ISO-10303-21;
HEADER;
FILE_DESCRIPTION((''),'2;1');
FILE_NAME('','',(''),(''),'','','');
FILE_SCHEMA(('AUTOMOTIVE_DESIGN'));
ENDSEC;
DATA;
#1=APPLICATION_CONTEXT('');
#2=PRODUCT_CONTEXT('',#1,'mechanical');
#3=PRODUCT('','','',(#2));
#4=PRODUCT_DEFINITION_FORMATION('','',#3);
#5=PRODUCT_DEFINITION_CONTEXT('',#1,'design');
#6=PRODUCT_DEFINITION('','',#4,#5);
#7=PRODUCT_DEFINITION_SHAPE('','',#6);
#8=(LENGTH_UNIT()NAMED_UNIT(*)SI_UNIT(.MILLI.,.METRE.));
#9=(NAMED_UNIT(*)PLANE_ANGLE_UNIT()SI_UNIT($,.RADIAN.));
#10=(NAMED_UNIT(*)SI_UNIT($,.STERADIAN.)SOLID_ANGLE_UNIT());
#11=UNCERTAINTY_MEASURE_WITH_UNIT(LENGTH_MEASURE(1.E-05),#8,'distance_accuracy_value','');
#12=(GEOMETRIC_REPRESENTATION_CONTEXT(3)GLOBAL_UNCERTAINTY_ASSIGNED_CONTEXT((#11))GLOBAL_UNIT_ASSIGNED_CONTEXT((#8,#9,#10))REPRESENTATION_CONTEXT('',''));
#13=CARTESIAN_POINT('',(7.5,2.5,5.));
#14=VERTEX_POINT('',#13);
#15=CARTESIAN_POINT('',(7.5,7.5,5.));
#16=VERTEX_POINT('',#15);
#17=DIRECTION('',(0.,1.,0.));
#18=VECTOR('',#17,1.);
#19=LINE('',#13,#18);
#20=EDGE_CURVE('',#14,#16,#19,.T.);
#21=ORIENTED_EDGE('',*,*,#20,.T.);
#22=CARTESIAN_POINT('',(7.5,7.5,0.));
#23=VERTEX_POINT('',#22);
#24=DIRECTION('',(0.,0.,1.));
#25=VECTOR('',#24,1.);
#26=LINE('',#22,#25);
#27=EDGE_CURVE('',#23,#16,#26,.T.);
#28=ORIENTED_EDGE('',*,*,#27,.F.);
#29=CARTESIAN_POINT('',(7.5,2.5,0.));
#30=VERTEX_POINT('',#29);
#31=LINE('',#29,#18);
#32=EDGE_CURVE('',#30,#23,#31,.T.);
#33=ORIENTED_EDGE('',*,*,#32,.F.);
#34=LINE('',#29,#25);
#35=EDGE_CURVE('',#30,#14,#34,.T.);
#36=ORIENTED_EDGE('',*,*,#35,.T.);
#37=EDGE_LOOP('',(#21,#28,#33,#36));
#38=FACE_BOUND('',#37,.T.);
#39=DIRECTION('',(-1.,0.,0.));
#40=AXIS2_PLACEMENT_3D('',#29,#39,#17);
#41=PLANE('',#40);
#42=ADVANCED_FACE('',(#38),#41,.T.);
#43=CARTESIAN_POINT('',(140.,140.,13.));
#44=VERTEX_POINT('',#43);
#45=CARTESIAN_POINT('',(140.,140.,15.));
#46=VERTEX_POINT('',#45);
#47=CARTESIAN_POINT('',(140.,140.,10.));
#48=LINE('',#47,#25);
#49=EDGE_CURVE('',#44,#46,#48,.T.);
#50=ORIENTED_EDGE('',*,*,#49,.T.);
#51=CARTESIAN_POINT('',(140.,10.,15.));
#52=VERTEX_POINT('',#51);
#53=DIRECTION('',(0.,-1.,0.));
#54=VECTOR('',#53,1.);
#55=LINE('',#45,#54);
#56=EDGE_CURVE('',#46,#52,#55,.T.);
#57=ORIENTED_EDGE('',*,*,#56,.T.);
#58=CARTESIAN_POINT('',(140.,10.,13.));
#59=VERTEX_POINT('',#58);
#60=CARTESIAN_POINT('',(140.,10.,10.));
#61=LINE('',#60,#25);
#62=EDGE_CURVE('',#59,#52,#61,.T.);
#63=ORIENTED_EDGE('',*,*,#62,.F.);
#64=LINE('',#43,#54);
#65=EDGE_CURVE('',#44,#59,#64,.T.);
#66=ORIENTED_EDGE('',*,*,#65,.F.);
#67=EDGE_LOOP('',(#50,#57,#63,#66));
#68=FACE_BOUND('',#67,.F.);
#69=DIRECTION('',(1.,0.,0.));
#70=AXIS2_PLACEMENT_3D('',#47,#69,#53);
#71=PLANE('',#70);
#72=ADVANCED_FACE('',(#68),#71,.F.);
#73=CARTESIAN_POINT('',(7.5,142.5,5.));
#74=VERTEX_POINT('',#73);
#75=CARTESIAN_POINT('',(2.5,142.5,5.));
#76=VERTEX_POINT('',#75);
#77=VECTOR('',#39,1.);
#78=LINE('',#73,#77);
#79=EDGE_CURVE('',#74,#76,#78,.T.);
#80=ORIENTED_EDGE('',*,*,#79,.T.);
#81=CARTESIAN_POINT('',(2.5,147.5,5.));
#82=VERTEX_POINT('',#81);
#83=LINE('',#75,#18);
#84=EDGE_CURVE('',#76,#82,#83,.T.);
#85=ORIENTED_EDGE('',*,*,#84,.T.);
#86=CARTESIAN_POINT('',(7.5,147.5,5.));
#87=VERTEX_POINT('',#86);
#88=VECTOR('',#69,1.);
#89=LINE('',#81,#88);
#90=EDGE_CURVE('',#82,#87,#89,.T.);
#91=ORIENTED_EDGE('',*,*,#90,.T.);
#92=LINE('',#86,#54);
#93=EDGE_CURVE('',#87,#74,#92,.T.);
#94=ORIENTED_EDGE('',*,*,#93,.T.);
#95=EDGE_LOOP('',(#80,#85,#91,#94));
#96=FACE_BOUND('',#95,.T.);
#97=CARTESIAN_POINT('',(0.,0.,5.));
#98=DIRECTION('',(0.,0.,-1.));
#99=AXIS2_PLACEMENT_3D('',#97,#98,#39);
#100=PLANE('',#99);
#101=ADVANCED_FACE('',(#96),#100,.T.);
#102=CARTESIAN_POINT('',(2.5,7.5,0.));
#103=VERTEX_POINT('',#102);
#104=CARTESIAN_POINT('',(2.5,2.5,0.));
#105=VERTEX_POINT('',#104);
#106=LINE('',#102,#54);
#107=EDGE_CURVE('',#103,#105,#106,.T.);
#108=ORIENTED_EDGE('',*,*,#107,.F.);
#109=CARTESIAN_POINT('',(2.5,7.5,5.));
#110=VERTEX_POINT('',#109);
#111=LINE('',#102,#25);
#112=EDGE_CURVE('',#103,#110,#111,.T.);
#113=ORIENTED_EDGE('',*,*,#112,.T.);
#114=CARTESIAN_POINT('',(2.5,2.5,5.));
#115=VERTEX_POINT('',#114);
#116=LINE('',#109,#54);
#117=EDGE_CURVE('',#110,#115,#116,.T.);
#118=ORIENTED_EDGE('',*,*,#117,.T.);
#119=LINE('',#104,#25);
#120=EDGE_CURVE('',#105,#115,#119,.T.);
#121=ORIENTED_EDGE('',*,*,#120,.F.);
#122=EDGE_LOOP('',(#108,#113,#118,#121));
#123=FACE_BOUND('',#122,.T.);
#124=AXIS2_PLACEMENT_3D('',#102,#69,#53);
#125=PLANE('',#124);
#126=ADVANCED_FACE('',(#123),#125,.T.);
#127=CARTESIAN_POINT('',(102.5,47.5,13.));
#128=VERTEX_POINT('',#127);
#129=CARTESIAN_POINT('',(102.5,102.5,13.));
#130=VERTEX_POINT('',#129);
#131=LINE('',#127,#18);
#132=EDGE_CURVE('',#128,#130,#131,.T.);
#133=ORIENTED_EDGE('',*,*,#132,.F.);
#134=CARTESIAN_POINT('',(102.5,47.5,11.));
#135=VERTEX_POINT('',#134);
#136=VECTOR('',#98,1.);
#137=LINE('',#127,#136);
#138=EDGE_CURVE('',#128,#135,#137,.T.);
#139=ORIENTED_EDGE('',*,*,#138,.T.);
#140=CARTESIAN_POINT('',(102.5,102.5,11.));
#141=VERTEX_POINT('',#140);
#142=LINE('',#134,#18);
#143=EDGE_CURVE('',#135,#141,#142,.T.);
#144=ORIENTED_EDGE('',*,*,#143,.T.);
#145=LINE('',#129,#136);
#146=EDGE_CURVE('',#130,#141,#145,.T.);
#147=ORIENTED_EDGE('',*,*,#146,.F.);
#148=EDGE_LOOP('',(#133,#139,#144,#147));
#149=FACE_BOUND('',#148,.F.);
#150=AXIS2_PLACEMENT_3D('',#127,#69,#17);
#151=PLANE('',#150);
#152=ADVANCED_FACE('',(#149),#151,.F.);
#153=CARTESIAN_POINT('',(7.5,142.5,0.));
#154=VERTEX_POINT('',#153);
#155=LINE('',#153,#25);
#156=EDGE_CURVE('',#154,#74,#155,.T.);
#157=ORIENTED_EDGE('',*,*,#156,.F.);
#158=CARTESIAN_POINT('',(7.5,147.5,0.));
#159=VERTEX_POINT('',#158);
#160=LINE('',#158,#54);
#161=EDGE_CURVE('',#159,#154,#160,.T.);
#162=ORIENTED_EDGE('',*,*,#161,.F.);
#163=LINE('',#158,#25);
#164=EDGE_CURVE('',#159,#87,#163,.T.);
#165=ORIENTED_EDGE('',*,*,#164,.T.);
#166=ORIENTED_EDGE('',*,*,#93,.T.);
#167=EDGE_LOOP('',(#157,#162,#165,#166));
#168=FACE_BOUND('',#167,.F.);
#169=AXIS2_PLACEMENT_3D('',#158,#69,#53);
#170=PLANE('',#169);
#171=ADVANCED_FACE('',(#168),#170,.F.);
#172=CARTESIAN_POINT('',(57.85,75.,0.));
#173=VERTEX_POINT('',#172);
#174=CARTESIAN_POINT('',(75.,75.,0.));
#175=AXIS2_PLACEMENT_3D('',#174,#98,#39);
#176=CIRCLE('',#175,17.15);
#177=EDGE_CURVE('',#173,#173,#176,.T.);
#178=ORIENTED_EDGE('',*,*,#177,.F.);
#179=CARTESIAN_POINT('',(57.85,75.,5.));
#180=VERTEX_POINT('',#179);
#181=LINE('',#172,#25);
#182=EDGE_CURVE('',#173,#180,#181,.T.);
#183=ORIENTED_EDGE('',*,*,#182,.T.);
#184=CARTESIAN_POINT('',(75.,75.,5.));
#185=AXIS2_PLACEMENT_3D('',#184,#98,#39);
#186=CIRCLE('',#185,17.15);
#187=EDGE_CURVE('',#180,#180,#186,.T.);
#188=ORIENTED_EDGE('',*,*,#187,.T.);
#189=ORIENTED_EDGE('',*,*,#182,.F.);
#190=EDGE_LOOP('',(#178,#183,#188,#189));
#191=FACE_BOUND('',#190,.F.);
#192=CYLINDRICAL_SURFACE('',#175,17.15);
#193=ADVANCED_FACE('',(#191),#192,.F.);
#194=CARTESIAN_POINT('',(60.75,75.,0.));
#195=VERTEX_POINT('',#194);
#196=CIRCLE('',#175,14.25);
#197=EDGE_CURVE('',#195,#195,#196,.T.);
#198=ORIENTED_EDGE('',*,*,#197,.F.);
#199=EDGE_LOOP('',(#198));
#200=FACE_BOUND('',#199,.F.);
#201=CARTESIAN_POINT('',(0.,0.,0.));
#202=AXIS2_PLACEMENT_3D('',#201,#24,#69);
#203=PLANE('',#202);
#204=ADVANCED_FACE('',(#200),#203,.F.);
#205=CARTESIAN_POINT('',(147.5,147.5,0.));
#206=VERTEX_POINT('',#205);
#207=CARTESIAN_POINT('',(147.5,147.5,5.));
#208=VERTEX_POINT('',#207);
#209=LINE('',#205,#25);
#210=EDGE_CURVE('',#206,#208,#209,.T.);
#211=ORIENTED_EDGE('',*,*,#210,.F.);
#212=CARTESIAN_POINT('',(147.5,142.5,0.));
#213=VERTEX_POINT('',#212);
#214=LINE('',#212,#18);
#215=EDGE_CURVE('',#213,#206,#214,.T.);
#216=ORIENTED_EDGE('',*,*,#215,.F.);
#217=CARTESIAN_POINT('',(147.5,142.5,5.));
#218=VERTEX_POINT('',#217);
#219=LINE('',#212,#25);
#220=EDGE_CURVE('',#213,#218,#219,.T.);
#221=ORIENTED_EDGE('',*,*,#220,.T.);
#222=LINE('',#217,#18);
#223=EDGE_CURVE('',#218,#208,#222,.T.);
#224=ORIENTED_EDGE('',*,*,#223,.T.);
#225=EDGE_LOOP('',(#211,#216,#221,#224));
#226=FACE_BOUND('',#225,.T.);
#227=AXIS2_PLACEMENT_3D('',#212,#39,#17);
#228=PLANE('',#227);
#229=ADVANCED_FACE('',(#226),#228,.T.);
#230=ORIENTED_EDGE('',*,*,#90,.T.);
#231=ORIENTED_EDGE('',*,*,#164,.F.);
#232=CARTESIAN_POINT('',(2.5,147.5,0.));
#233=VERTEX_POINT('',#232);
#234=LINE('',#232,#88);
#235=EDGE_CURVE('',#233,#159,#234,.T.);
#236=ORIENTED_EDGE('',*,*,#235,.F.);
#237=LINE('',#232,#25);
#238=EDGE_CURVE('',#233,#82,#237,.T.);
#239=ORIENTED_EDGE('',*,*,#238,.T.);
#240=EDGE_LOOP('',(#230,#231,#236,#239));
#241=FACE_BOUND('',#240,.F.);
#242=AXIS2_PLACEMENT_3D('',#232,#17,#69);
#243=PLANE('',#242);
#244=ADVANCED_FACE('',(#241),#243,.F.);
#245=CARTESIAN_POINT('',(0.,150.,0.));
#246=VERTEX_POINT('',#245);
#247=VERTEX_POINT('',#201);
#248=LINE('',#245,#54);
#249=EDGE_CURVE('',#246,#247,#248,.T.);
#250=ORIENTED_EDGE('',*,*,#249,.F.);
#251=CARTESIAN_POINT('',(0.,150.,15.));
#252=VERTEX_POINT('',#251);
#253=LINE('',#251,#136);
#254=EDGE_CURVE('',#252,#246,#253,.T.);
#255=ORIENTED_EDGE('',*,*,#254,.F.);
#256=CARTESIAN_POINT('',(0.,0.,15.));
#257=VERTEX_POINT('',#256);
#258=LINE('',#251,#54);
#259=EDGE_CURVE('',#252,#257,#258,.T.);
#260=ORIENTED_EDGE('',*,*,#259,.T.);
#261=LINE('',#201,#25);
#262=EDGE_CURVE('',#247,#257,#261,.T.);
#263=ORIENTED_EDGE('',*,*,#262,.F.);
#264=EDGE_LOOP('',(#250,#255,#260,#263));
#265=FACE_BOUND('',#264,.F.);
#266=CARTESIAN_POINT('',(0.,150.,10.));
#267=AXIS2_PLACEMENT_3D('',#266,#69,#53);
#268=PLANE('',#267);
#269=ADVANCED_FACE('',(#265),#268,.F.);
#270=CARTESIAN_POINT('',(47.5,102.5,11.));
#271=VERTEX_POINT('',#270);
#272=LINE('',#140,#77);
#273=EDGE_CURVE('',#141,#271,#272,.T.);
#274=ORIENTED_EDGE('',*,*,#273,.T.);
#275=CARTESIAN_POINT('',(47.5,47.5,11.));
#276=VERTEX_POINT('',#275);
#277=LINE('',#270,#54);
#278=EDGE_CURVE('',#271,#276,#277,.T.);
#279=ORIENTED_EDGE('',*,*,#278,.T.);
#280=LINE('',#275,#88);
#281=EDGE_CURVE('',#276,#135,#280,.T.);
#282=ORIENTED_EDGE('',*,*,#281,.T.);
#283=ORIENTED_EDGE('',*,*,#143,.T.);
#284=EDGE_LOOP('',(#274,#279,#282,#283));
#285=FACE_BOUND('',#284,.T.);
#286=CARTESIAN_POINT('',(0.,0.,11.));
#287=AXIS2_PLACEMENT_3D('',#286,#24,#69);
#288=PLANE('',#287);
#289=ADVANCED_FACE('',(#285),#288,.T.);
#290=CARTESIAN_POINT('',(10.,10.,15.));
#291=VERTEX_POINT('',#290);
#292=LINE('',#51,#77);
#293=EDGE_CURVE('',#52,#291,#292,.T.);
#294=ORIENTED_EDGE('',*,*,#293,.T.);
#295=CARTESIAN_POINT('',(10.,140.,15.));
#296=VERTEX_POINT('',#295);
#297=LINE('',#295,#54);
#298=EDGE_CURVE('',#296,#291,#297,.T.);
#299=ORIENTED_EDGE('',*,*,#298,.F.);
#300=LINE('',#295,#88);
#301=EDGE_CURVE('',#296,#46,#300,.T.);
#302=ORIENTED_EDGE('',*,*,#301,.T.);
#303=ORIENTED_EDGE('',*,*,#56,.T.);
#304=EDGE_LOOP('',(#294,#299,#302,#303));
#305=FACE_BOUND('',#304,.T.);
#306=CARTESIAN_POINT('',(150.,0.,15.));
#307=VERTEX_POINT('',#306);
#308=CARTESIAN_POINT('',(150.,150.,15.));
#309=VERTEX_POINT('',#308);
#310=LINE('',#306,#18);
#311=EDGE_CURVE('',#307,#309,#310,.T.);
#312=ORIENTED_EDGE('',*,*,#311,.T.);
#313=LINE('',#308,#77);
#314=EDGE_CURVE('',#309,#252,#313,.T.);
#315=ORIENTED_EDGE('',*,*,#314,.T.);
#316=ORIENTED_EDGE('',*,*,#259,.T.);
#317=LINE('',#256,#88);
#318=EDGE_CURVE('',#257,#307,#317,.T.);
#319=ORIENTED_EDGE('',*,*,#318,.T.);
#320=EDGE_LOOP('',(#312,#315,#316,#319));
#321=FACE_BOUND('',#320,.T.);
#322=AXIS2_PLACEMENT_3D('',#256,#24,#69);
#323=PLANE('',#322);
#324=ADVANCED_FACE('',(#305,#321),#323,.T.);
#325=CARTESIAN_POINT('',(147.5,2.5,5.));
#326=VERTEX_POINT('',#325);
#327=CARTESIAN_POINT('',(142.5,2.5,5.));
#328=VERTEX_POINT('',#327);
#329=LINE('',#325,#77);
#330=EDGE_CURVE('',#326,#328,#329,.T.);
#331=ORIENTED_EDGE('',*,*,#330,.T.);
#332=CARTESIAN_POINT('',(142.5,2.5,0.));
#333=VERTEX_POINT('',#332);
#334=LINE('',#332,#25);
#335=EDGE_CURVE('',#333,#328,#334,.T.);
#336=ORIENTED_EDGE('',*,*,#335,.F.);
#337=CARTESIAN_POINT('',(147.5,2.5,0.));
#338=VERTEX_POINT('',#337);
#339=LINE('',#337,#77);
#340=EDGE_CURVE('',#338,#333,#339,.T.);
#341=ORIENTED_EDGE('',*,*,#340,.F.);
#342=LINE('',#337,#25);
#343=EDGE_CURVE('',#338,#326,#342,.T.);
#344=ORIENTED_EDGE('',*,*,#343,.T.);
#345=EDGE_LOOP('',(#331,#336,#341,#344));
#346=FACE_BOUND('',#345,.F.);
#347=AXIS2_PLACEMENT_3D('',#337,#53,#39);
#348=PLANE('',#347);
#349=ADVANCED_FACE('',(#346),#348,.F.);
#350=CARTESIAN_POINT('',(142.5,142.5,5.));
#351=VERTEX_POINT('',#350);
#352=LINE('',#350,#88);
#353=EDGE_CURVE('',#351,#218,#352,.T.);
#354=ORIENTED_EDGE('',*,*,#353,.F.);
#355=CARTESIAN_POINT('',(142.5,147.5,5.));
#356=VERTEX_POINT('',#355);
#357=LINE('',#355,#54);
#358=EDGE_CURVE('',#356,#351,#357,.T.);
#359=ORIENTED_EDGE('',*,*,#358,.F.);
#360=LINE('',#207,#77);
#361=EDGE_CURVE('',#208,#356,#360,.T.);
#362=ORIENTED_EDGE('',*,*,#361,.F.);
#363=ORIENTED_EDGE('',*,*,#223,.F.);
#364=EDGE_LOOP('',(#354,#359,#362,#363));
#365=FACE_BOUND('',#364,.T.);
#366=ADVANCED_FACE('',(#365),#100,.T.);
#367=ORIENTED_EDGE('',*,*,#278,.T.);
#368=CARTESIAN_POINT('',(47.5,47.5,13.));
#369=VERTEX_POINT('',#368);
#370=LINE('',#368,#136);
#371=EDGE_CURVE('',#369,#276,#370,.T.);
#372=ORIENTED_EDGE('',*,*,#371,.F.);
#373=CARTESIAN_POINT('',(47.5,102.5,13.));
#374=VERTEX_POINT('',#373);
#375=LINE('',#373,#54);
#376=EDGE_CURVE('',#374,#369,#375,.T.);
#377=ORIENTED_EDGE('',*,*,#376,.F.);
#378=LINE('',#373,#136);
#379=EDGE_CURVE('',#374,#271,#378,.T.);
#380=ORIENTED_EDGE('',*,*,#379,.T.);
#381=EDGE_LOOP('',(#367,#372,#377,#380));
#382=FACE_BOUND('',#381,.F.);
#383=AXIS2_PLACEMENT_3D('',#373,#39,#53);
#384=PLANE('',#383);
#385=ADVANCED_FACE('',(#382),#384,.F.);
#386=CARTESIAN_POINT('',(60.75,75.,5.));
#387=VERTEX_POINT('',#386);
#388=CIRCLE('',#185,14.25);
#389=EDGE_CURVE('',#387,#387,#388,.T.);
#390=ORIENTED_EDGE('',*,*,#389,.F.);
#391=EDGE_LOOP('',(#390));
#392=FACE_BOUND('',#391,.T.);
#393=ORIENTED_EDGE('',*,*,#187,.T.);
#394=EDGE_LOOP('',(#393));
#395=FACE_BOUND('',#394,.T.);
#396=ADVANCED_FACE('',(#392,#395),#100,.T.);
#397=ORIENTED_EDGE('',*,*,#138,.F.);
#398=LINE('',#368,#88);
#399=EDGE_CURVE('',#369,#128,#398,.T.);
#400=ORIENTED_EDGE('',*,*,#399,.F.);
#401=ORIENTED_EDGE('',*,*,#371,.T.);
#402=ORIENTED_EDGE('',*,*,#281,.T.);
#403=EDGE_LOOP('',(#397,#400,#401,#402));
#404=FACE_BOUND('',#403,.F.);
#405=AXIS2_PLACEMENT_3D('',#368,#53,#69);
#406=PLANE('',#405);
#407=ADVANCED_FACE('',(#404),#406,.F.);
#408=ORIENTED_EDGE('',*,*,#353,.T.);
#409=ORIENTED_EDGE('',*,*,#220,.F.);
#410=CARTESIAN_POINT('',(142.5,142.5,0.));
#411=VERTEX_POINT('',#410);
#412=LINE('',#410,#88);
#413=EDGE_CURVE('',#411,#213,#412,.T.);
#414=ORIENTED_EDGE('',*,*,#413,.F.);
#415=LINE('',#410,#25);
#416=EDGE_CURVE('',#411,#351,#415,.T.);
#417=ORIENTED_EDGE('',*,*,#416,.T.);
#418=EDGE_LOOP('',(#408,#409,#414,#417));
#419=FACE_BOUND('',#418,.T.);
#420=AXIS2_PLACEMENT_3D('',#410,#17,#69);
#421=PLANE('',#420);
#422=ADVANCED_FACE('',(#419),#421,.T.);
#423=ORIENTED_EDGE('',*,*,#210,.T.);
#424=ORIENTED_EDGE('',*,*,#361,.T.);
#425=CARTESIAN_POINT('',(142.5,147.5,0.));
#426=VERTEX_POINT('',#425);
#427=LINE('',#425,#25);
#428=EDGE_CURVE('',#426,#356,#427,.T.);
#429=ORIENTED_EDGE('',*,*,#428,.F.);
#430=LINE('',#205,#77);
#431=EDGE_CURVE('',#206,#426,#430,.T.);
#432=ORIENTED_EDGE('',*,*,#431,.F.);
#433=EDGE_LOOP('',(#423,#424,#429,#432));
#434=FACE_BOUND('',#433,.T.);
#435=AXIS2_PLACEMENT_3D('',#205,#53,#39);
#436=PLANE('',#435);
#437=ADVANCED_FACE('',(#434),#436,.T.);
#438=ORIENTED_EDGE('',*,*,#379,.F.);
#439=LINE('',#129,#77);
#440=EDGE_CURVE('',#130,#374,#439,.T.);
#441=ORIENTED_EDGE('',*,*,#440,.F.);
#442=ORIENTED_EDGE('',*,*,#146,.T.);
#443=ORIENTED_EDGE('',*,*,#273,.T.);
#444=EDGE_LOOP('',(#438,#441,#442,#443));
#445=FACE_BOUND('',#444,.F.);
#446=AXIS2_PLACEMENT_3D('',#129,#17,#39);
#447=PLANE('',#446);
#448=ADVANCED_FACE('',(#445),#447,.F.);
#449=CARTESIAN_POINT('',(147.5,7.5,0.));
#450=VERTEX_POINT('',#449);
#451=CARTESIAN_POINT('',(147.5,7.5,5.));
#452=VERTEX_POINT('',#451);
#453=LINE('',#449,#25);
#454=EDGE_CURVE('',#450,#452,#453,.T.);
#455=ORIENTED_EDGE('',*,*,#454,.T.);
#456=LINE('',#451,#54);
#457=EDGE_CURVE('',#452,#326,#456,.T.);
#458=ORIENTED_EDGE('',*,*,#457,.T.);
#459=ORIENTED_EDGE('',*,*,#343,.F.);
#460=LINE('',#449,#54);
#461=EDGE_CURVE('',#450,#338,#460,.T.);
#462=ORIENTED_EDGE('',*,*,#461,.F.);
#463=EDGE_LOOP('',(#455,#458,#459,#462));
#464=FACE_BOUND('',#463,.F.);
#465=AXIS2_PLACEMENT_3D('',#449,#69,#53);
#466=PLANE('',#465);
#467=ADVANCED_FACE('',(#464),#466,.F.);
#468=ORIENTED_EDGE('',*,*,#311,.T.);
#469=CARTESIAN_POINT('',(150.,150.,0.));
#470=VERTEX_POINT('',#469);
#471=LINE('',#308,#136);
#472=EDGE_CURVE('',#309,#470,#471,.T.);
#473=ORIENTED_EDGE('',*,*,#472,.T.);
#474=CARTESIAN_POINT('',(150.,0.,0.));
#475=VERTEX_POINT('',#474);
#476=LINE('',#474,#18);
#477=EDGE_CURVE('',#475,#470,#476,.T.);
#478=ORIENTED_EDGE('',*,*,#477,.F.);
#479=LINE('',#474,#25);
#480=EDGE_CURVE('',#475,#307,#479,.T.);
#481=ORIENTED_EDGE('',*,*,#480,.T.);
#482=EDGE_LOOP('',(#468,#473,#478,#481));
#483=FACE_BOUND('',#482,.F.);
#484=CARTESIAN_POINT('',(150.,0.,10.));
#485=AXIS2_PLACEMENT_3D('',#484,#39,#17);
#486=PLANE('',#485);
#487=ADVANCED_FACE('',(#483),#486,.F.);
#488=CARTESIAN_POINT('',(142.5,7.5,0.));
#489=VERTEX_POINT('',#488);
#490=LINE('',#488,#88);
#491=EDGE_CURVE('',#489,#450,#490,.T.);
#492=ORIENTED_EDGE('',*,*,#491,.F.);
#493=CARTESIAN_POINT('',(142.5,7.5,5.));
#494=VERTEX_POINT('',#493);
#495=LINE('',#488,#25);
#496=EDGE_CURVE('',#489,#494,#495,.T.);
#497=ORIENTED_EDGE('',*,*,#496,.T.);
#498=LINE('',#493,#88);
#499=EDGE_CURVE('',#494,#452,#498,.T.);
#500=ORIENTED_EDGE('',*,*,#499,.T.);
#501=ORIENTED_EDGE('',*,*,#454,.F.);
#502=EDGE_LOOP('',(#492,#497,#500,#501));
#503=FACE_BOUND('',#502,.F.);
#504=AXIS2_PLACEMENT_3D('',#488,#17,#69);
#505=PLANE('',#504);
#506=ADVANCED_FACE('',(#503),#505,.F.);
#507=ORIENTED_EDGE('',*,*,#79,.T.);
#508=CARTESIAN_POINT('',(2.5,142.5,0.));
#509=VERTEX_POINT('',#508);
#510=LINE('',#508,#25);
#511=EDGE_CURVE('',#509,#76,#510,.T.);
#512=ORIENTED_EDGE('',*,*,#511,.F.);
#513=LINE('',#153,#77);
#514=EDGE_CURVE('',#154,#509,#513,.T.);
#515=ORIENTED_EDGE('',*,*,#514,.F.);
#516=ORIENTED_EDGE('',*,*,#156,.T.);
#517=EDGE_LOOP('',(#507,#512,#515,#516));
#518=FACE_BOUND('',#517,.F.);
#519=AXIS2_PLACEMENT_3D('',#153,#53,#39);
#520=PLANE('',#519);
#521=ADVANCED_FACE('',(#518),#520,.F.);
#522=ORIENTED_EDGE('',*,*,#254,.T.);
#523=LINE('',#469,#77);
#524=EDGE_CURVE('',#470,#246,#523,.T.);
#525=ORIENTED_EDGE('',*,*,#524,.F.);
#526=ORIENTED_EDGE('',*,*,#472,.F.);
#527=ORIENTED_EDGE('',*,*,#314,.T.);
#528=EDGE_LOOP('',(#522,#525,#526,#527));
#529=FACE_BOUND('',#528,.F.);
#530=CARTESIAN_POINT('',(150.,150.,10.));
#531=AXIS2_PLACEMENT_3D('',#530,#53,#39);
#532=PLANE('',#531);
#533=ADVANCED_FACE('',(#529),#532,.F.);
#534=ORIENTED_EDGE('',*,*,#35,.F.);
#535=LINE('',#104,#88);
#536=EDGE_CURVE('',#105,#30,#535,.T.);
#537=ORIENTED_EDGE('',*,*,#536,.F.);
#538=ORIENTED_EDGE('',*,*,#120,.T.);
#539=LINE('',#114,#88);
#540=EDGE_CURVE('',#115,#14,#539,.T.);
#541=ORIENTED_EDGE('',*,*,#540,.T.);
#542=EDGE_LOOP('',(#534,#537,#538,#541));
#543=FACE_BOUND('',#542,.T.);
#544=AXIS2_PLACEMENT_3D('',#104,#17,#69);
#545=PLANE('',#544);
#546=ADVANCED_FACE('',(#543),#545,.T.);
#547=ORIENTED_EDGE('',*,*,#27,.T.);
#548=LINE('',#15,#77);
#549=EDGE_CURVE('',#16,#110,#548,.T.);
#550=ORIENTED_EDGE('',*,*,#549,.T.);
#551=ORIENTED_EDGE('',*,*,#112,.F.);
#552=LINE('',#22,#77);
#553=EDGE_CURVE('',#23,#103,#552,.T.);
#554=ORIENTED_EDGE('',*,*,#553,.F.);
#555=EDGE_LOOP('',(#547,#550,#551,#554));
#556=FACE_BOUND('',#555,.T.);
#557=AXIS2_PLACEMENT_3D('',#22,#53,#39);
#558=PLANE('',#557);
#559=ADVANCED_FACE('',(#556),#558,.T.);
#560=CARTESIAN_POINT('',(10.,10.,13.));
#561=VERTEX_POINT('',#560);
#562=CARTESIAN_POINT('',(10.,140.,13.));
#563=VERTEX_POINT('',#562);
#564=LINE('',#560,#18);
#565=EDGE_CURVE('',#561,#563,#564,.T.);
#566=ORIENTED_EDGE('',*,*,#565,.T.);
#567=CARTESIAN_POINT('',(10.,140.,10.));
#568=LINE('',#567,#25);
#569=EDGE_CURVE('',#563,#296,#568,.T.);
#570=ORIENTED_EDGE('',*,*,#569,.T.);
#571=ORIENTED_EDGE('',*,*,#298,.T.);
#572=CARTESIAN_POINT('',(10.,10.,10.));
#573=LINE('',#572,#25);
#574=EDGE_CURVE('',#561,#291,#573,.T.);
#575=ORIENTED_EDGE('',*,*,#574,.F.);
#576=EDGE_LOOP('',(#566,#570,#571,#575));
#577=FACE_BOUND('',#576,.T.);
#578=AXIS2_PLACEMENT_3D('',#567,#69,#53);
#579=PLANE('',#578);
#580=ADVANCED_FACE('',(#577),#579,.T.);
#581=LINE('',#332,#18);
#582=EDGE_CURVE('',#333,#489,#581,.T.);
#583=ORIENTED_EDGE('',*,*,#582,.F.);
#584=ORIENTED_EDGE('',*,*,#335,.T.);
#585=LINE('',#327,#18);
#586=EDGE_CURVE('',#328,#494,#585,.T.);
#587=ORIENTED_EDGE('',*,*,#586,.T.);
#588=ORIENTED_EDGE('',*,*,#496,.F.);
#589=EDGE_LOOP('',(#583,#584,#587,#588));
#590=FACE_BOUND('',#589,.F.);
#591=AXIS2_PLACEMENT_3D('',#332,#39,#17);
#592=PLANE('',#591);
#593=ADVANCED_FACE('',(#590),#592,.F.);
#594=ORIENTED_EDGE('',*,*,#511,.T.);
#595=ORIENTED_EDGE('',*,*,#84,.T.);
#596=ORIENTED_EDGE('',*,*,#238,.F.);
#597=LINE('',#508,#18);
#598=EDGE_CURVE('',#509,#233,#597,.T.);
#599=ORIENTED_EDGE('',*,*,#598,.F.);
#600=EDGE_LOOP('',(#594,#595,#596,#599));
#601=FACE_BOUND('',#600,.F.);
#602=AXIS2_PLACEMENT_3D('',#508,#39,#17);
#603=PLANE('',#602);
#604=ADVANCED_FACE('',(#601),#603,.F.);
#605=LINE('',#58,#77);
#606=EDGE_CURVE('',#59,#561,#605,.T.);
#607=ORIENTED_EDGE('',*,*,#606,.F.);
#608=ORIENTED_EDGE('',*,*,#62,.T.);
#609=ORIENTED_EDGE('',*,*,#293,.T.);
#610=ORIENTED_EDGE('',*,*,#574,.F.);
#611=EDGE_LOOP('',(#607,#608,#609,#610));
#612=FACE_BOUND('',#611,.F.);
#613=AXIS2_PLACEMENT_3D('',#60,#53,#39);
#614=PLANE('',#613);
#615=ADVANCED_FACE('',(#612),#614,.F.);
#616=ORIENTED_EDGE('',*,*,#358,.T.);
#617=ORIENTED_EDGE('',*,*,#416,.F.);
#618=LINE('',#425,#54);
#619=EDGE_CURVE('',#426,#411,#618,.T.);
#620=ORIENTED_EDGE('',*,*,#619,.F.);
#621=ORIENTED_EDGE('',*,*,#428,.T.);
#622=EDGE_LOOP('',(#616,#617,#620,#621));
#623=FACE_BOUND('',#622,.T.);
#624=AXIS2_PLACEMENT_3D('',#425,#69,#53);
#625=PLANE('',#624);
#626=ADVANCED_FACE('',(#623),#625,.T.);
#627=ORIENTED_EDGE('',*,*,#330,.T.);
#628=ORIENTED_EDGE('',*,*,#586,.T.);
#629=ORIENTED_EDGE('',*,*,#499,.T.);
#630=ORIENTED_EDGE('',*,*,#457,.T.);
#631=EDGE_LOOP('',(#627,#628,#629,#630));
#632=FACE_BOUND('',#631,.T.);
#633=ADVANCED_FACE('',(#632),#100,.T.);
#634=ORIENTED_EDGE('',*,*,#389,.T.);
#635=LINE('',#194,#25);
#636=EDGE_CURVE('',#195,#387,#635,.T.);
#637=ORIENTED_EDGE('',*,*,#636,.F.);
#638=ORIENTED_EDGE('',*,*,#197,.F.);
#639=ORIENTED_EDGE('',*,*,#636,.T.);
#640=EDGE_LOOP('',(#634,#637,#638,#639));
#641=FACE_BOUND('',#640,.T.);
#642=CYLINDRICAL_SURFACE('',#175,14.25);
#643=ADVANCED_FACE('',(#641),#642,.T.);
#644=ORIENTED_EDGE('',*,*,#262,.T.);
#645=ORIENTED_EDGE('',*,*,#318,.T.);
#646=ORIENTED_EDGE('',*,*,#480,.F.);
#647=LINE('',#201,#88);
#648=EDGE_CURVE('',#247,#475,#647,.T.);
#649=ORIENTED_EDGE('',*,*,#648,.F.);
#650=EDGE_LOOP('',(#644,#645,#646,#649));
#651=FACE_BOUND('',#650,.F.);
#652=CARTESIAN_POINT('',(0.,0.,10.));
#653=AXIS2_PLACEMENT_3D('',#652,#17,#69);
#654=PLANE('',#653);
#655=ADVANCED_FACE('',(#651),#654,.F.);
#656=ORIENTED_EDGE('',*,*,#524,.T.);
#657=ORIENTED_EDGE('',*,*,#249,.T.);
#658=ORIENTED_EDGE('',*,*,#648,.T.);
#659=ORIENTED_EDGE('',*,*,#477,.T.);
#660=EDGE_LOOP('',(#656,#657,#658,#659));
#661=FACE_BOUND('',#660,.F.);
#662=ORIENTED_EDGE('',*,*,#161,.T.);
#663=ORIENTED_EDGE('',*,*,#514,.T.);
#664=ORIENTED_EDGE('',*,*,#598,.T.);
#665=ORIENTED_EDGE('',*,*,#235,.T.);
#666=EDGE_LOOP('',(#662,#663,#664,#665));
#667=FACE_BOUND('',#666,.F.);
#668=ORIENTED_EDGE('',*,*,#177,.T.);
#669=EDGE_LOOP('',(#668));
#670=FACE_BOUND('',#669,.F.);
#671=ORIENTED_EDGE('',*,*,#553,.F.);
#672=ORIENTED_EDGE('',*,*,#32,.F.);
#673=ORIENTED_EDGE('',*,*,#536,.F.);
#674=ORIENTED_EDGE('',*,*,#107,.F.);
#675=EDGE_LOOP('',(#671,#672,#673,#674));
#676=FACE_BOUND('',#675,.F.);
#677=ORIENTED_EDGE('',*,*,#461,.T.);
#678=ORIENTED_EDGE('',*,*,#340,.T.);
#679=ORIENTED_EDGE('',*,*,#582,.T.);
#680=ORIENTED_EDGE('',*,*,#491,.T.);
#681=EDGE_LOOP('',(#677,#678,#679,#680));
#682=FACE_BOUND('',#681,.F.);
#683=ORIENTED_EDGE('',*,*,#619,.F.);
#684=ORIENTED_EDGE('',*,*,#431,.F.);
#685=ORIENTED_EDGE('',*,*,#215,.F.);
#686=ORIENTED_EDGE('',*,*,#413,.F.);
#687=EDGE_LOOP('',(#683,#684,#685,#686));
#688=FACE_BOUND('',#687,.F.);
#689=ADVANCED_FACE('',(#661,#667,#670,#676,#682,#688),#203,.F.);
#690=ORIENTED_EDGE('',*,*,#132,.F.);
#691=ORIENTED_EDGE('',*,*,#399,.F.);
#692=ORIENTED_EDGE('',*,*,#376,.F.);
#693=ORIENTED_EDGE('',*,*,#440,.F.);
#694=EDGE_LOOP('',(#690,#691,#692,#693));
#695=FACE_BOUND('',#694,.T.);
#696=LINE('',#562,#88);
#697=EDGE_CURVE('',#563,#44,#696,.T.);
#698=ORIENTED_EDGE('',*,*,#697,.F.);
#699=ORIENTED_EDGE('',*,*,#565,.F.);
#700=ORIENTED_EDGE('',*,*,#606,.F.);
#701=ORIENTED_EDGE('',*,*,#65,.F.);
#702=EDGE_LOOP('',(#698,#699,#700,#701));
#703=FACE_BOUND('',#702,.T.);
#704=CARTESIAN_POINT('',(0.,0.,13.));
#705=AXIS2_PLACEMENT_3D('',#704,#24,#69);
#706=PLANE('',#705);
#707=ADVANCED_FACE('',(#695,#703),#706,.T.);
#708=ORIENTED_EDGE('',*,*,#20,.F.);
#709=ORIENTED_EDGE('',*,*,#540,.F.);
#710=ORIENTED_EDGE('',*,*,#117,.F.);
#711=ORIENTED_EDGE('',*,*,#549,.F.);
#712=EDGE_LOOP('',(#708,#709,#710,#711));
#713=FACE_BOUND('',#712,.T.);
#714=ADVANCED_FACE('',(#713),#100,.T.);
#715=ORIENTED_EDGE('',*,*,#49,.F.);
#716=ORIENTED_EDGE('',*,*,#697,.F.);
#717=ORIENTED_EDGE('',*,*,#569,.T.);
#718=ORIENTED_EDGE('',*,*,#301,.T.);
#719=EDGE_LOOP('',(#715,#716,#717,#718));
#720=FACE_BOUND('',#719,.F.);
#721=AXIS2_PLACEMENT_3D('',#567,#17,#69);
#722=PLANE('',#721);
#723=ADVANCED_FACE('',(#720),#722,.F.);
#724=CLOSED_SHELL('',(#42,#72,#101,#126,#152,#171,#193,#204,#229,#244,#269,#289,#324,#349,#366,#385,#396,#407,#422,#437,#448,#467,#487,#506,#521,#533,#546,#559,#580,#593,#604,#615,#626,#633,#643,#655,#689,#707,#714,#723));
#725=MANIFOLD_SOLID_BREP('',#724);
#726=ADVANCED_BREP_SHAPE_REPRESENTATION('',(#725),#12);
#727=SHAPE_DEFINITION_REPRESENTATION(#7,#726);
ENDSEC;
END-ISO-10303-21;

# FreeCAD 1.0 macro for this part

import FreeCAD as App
import Part
import Sketcher
from FreeCAD import Vector
Q = App.Units.Quantity

doc = App.newDocument("Part")
params = doc.addObject("Spreadsheet::Sheet", "Params")
for row, (alias, value) in enumerate([
    ("sketch1_width", "150 mm"),
    ("pad1_length", "10 mm"),
    ("sketch2_width", "130 mm"),
    ("pocket1_length", "2 mm"),
    ("sketch3_diameter", "34.3 mm"),
    ("sketch3_diameter2", "28.5 mm"),
    ("sketch3_width", "5 mm"),
    ("pocket2_length", "5 mm"),
    ("sketch4_width", "55 mm"),
    ("pocket3_length", "2 mm"),
    ("sketch5_width", "55 mm"),
    ("pad2_length", "2 mm"),
    ("sketch6_width", "75 mm"),
    ("pad3_length", "5 mm"),
    ("sketch7_width", "55 mm"),
    ("pocket4_length", "2 mm"),
    ("sketch8_width", "130 mm"),
    ("sketch8_width2", "75 mm"),
    ("pad4_length", "5 mm"),
    ("sketch9_width", "150 mm"),
    ("sketch9_width2", "130 mm"),
    ("pad5_length", "5 mm"),
], start=1):
    params.set(f"A{row}", alias)
    params.set(f"B{row}", "=" + value)
    params.setAlias(f"B{row}", alias)

body = doc.addObject("PartDesign::Body", "Body")

# Sketch on XY plane
sketch1 = body.newObject("Sketcher::SketchObject", "Sketch")
sketch1.AttachmentSupport = (doc.getObject("XY_Plane"), [""])
sketch1.MapMode = "FlatFace"
sketch1.addGeometry(Part.LineSegment(Vector(0, 150, 0), Vector(0, 0, 0)), False)
sketch1.addGeometry(Part.LineSegment(Vector(0, 0, 0), Vector(150, 0, 0)), False)
sketch1.addGeometry(Part.LineSegment(Vector(150, 0, 0), Vector(150, 150, 0)), False)
sketch1.addGeometry(Part.LineSegment(Vector(150, 150, 0), Vector(0, 150, 0)), False)
sketch1.addConstraint(Sketcher.Constraint("Coincident", 0, 2, 1, 1))
sketch1.addConstraint(Sketcher.Constraint("Coincident", 1, 2, 2, 1))
sketch1.addConstraint(Sketcher.Constraint("Coincident", 2, 2, 3, 1))
sketch1.addConstraint(Sketcher.Constraint("Coincident", 3, 2, 0, 1))
sketch1.addConstraint(Sketcher.Constraint("Vertical", 0))
sketch1.addConstraint(Sketcher.Constraint("Horizontal", 1))
sketch1.addConstraint(Sketcher.Constraint("Vertical", 2))
sketch1.addConstraint(Sketcher.Constraint("Horizontal", 3))
sketch1.addConstraint(Sketcher.Constraint("Coincident", 0, 2, -1, 1))
sketch1.addConstraint(Sketcher.Constraint("Equal", 3, 0))
sketch1.addConstraint(Sketcher.Constraint("DistanceX", 1, 1, 1, 2, Q("150 mm")))
sketch1.setExpression("Constraints[10]", "Params.sketch1_width")
pad1 = body.newObject("PartDesign::Pad", "Pad")
pad1.Profile = sketch1
pad1.setExpression("Length", "Params.pad1_length")

# Sketch on XY plane
sketch2 = body.newObject("Sketcher::SketchObject", "Sketch001")
sketch2.AttachmentSupport = (doc.getObject("XY_Plane"), [""])
sketch2.MapMode = "FlatFace"
sketch2.AttachmentOffset = App.Placement(Vector(0, 0, 10), App.Rotation())
sketch2.addGeometry(Part.LineSegment(Vector(10, 140, 0), Vector(10, 10, 0)), False)
sketch2.addGeometry(Part.LineSegment(Vector(10, 10, 0), Vector(140, 10, 0)), False)
sketch2.addGeometry(Part.LineSegment(Vector(140, 10, 0), Vector(140, 140, 0)), False)
sketch2.addGeometry(Part.LineSegment(Vector(140, 140, 0), Vector(10, 140, 0)), False)
sketch2.addConstraint(Sketcher.Constraint("Coincident", 0, 2, 1, 1))
sketch2.addConstraint(Sketcher.Constraint("Coincident", 1, 2, 2, 1))
sketch2.addConstraint(Sketcher.Constraint("Coincident", 2, 2, 3, 1))
sketch2.addConstraint(Sketcher.Constraint("Coincident", 3, 2, 0, 1))
sketch2.addConstraint(Sketcher.Constraint("Vertical", 0))
sketch2.addConstraint(Sketcher.Constraint("Horizontal", 1))
sketch2.addConstraint(Sketcher.Constraint("Vertical", 2))
sketch2.addConstraint(Sketcher.Constraint("Horizontal", 3))
sketch2.addConstraint(Sketcher.Constraint("Equal", 3, 0))
sketch2.addConstraint(Sketcher.Constraint("DistanceX", 1, 1, 1, 2, Q("130 mm")))
sketch2.addConstraint(Sketcher.Constraint("DistanceX", -1, 1, 0, 2, Q("10 mm")))
sketch2.addConstraint(Sketcher.Constraint("DistanceY", -1, 1, 0, 2, Q("10 mm")))
sketch2.setExpression("Constraints[9]", "Params.sketch2_width")
pocket1 = body.newObject("PartDesign::Pocket", "Pocket")
pocket1.Profile = sketch2
pocket1.setExpression("Length", "Params.pocket1_length")

# Sketch on XY plane
sketch3 = body.newObject("Sketcher::SketchObject", "Sketch002")
sketch3.AttachmentSupport = (doc.getObject("XY_Plane"), [""])
sketch3.MapMode = "FlatFace"
sketch3.addGeometry(Part.Circle(Vector(75, 75, 0), Vector(0, 0, 1), 17.15), False)
sketch3.addGeometry(Part.Circle(Vector(75, 75, 0), Vector(0, 0, 1), 14.25), False)
sketch3.addGeometry(Part.LineSegment(Vector(147.5, 7.5, 0), Vector(147.5, 2.5, 0)), False)
sketch3.addGeometry(Part.LineSegment(Vector(147.5, 2.5, 0), Vector(142.5, 2.5, 0)), False)
sketch3.addGeometry(Part.LineSegment(Vector(142.5, 2.5, 0), Vector(142.5, 7.5, 0)), False)
sketch3.addGeometry(Part.LineSegment(Vector(142.5, 7.5, 0), Vector(147.5, 7.5, 0)), False)
sketch3.addGeometry(Part.LineSegment(Vector(7.5, 2.5, 0), Vector(2.5, 2.5, 0)), False)
sketch3.addGeometry(Part.LineSegment(Vector(2.5, 2.5, 0), Vector(2.5, 7.5, 0)), False)
sketch3.addGeometry(Part.LineSegment(Vector(2.5, 7.5, 0), Vector(7.5, 7.5, 0)), False)
sketch3.addGeometry(Part.LineSegment(Vector(7.5, 7.5, 0), Vector(7.5, 2.5, 0)), False)
sketch3.addGeometry(Part.LineSegment(Vector(142.5, 147.5, 0), Vector(147.5, 147.5, 0)), False)
sketch3.addGeometry(Part.LineSegment(Vector(147.5, 147.5, 0), Vector(147.5, 142.5, 0)), False)
sketch3.addGeometry(Part.LineSegment(Vector(147.5, 142.5, 0), Vector(142.5, 142.5, 0)), False)
sketch3.addGeometry(Part.LineSegment(Vector(142.5, 142.5, 0), Vector(142.5, 147.5, 0)), False)
sketch3.addGeometry(Part.LineSegment(Vector(2.5, 142.5, 0), Vector(2.5, 147.5, 0)), False)
sketch3.addGeometry(Part.LineSegment(Vector(2.5, 147.5, 0), Vector(7.5, 147.5, 0)), False)
sketch3.addGeometry(Part.LineSegment(Vector(7.5, 147.5, 0), Vector(7.5, 142.5, 0)), False)
sketch3.addGeometry(Part.LineSegment(Vector(7.5, 142.5, 0), Vector(2.5, 142.5, 0)), False)
sketch3.addConstraint(Sketcher.Constraint("Coincident", 2, 2, 3, 1))
sketch3.addConstraint(Sketcher.Constraint("Coincident", 3, 2, 4, 1))
sketch3.addConstraint(Sketcher.Constraint("Coincident", 4, 2, 5, 1))
sketch3.addConstraint(Sketcher.Constraint("Coincident", 5, 2, 2, 1))
sketch3.addConstraint(Sketcher.Constraint("Coincident", 6, 2, 7, 1))
sketch3.addConstraint(Sketcher.Constraint("Coincident", 7, 2, 8, 1))
sketch3.addConstraint(Sketcher.Constraint("Coincident", 8, 2, 9, 1))
sketch3.addConstraint(Sketcher.Constraint("Coincident", 9, 2, 6, 1))
sketch3.addConstraint(Sketcher.Constraint("Coincident", 10, 2, 11, 1))
sketch3.addConstraint(Sketcher.Constraint("Coincident", 11, 2, 12, 1))
sketch3.addConstraint(Sketcher.Constraint("Coincident", 12, 2, 13, 1))
sketch3.addConstraint(Sketcher.Constraint("Coincident", 13, 2, 10, 1))
sketch3.addConstraint(Sketcher.Constraint("Coincident", 14, 2, 15, 1))
sketch3.addConstraint(Sketcher.Constraint("Coincident", 15, 2, 16, 1))
sketch3.addConstraint(Sketcher.Constraint("Coincident", 16, 2, 17, 1))
sketch3.addConstraint(Sketcher.Constraint("Coincident", 17, 2, 14, 1))
sketch3.addConstraint(Sketcher.Constraint("Vertical", 2))
sketch3.addConstraint(Sketcher.Constraint("Horizontal", 3))
sketch3.addConstraint(Sketcher.Constraint("Vertical", 4))
sketch3.addConstraint(Sketcher.Constraint("Horizontal", 5))
sketch3.addConstraint(Sketcher.Constraint("Horizontal", 6))
sketch3.addConstraint(Sketcher.Constraint("Vertical", 7))
sketch3.addConstraint(Sketcher.Constraint("Horizontal", 8))
sketch3.addConstraint(Sketcher.Constraint("Vertical", 9))
sketch3.addConstraint(Sketcher.Constraint("Horizontal", 10))
sketch3.addConstraint(Sketcher.Constraint("Vertical", 11))
sketch3.addConstraint(Sketcher.Constraint("Horizontal", 12))
sketch3.addConstraint(Sketcher.Constraint("Vertical", 13))
sketch3.addConstraint(Sketcher.Constraint("Vertical", 14))
sketch3.addConstraint(Sketcher.Constraint("Horizontal", 15))
sketch3.addConstraint(Sketcher.Constraint("Vertical", 16))
sketch3.addConstraint(Sketcher.Constraint("Horizontal", 17))
sketch3.addConstraint(Sketcher.Constraint("Coincident", 1, 3, 0, 3))
sketch3.addConstraint(Sketcher.Constraint("Horizontal", 3, 2, 6, 2))
sketch3.addConstraint(Sketcher.Constraint("Horizontal", 5, 2, 7, 2))
sketch3.addConstraint(Sketcher.Constraint("Horizontal", 13, 2, 14, 2))
sketch3.addConstraint(Sketcher.Constraint("Horizontal", 12, 2, 16, 2))
sketch3.addConstraint(Sketcher.Constraint("Vertical", 5, 2, 10, 2))
sketch3.addConstraint(Sketcher.Constraint("Vertical", 4, 2, 12, 2))
sketch3.addConstraint(Sketcher.Constraint("Vertical", 7, 2, 14, 2))
sketch3.addConstraint(Sketcher.Constraint("Vertical", 9, 2, 15, 2))
sketch3.addConstraint(Sketcher.Constraint("Equal", 5, 6))
sketch3.addConstraint(Sketcher.Constraint("Equal", 17, 2))
sketch3.addConstraint(Sketcher.Constraint("Equal", 9, 11))
sketch3.addConstraint(Sketcher.Constraint("Diameter", 0, Q("34.3 mm")))
sketch3.addConstraint(Sketcher.Constraint("Diameter", 1, Q("28.5 mm")))
sketch3.addConstraint(Sketcher.Constraint("DistanceX", 3, 2, 3, 1, Q("5 mm")))
sketch3.addConstraint(Sketcher.Constraint("DistanceX", -1, 1, 0, 3, Q("75 mm")))
sketch3.addConstraint(Sketcher.Constraint("DistanceY", -1, 1, 0, 3, Q("75 mm")))
sketch3.addConstraint(Sketcher.Constraint("DistanceX", 6, 2, 3, 2, Q("140 mm")))
sketch3.addConstraint(Sketcher.Constraint("DistanceY", 5, 2, 10, 2, Q("140 mm")))
sketch3.addConstraint(Sketcher.Constraint("DistanceX", -1, 1, 2, 2, Q("147.5 mm")))
sketch3.addConstraint(Sketcher.Constraint("DistanceY", -1, 1, 2, 2, Q("2.5 mm")))
sketch3.setExpression("Constraints[44]", "Params.sketch3_diameter")
sketch3.setExpression("Constraints[45]", "Params.sketch3_diameter2")
sketch3.setExpression("Constraints[46]", "Params.sketch3_width")
pocket2 = body.newObject("PartDesign::Pocket", "Pocket001")
pocket2.Profile = sketch3
pocket2.setExpression("Length", "Params.pocket2_length")
pocket2.Reversed = True

# Sketch on XY plane
sketch4 = body.newObject("Sketcher::SketchObject", "Sketch003")
sketch4.AttachmentSupport = (doc.getObject("XY_Plane"), [""])
sketch4.MapMode = "FlatFace"
sketch4.AttachmentOffset = App.Placement(Vector(0, 0, 8), App.Rotation())
sketch4.addGeometry(Part.LineSegment(Vector(102.5, 102.5, 0), Vector(47.5, 102.5, 0)), False)
sketch4.addGeometry(Part.LineSegment(Vector(47.5, 102.5, 0), Vector(47.5, 47.5, 0)), False)
sketch4.addGeometry(Part.LineSegment(Vector(47.5, 47.5, 0), Vector(102.5, 47.5, 0)), False)
sketch4.addGeometry(Part.LineSegment(Vector(102.5, 47.5, 0), Vector(102.5, 102.5, 0)), False)
sketch4.addConstraint(Sketcher.Constraint("Coincident", 0, 2, 1, 1))
sketch4.addConstraint(Sketcher.Constraint("Coincident", 1, 2, 2, 1))
sketch4.addConstraint(Sketcher.Constraint("Coincident", 2, 2, 3, 1))
sketch4.addConstraint(Sketcher.Constraint("Coincident", 3, 2, 0, 1))
sketch4.addConstraint(Sketcher.Constraint("Horizontal", 0))
sketch4.addConstraint(Sketcher.Constraint("Vertical", 1))
sketch4.addConstraint(Sketcher.Constraint("Horizontal", 2))
sketch4.addConstraint(Sketcher.Constraint("Vertical", 3))
sketch4.addConstraint(Sketcher.Constraint("Equal", 2, 1))
sketch4.addConstraint(Sketcher.Constraint("DistanceX", 0, 2, 0, 1, Q("55 mm")))
sketch4.addConstraint(Sketcher.Constraint("DistanceX", -1, 1, 0, 2, Q("47.5 mm")))
sketch4.addConstraint(Sketcher.Constraint("DistanceY", -1, 1, 0, 2, Q("102.5 mm")))
sketch4.setExpression("Constraints[9]", "Params.sketch4_width")
pocket3 = body.newObject("PartDesign::Pocket", "Pocket002")
pocket3.Profile = sketch4
pocket3.setExpression("Length", "Params.pocket3_length")

# Sketch on XY plane
sketch5 = body.newObject("Sketcher::SketchObject", "Sketch004")
sketch5.AttachmentSupport = (doc.getObject("XY_Plane"), [""])
sketch5.MapMode = "FlatFace"
sketch5.AttachmentOffset = App.Placement(Vector(0, 0, 6), App.Rotation())
sketch5.addGeometry(Part.LineSegment(Vector(47.5, 102.5, 0), Vector(47.5, 47.5, 0)), False)
sketch5.addGeometry(Part.LineSegment(Vector(47.5, 47.5, 0), Vector(102.5, 47.5, 0)), False)
sketch5.addGeometry(Part.LineSegment(Vector(102.5, 47.5, 0), Vector(102.5, 102.5, 0)), False)
sketch5.addGeometry(Part.LineSegment(Vector(102.5, 102.5, 0), Vector(47.5, 102.5, 0)), False)
sketch5.addConstraint(Sketcher.Constraint("Coincident", 0, 2, 1, 1))
sketch5.addConstraint(Sketcher.Constraint("Coincident", 1, 2, 2, 1))
sketch5.addConstraint(Sketcher.Constraint("Coincident", 2, 2, 3, 1))
sketch5.addConstraint(Sketcher.Constraint("Coincident", 3, 2, 0, 1))
sketch5.addConstraint(Sketcher.Constraint("Vertical", 0))
sketch5.addConstraint(Sketcher.Constraint("Horizontal", 1))
sketch5.addConstraint(Sketcher.Constraint("Vertical", 2))
sketch5.addConstraint(Sketcher.Constraint("Horizontal", 3))
sketch5.addConstraint(Sketcher.Constraint("Equal", 3, 0))
sketch5.addConstraint(Sketcher.Constraint("DistanceX", 1, 1, 1, 2, Q("55 mm")))
sketch5.addConstraint(Sketcher.Constraint("DistanceX", -1, 1, 0, 2, Q("47.5 mm")))
sketch5.addConstraint(Sketcher.Constraint("DistanceY", -1, 1, 0, 2, Q("47.5 mm")))
sketch5.setExpression("Constraints[9]", "Params.sketch5_width")
pad2 = body.newObject("PartDesign::Pad", "Pad001")
pad2.Profile = sketch5
pad2.setExpression("Length", "Params.pad2_length")

# Sketch on XY plane
sketch6 = body.newObject("Sketcher::SketchObject", "Sketch005")
sketch6.AttachmentSupport = (doc.getObject("XY_Plane"), [""])
sketch6.MapMode = "FlatFace"
sketch6.AttachmentOffset = App.Placement(Vector(0, 0, 8), App.Rotation())
sketch6.addGeometry(Part.LineSegment(Vector(37.5, 112.5, 0), Vector(37.5, 37.5, 0)), False)
sketch6.addGeometry(Part.LineSegment(Vector(37.5, 37.5, 0), Vector(112.5, 37.5, 0)), False)
sketch6.addGeometry(Part.LineSegment(Vector(112.5, 37.5, 0), Vector(112.5, 112.5, 0)), False)
sketch6.addGeometry(Part.LineSegment(Vector(112.5, 112.5, 0), Vector(37.5, 112.5, 0)), False)
sketch6.addConstraint(Sketcher.Constraint("Coincident", 0, 2, 1, 1))
sketch6.addConstraint(Sketcher.Constraint("Coincident", 1, 2, 2, 1))
sketch6.addConstraint(Sketcher.Constraint("Coincident", 2, 2, 3, 1))
sketch6.addConstraint(Sketcher.Constraint("Coincident", 3, 2, 0, 1))
sketch6.addConstraint(Sketcher.Constraint("Vertical", 0))
sketch6.addConstraint(Sketcher.Constraint("Horizontal", 1))
sketch6.addConstraint(Sketcher.Constraint("Vertical", 2))
sketch6.addConstraint(Sketcher.Constraint("Horizontal", 3))
sketch6.addConstraint(Sketcher.Constraint("Equal", 3, 0))
sketch6.addConstraint(Sketcher.Constraint("DistanceX", 1, 1, 1, 2, Q("75 mm")))
sketch6.addConstraint(Sketcher.Constraint("DistanceX", -1, 1, 0, 2, Q("37.5 mm")))
sketch6.addConstraint(Sketcher.Constraint("DistanceY", -1, 1, 0, 2, Q("37.5 mm")))
sketch6.setExpression("Constraints[9]", "Params.sketch6_width")
pad3 = body.newObject("PartDesign::Pad", "Pad002")
pad3.Profile = sketch6
pad3.setExpression("Length", "Params.pad3_length")

# Sketch on XY plane
sketch7 = body.newObject("Sketcher::SketchObject", "Sketch006")
sketch7.AttachmentSupport = (doc.getObject("XY_Plane"), [""])
sketch7.MapMode = "FlatFace"
sketch7.AttachmentOffset = App.Placement(Vector(0, 0, 13), App.Rotation())
sketch7.addGeometry(Part.LineSegment(Vector(47.5, 102.5, 0), Vector(47.5, 47.5, 0)), False)
sketch7.addGeometry(Part.LineSegment(Vector(47.5, 47.5, 0), Vector(102.5, 47.5, 0)), False)
sketch7.addGeometry(Part.LineSegment(Vector(102.5, 47.5, 0), Vector(102.5, 102.5, 0)), False)
sketch7.addGeometry(Part.LineSegment(Vector(102.5, 102.5, 0), Vector(47.5, 102.5, 0)), False)
sketch7.addConstraint(Sketcher.Constraint("Coincident", 0, 2, 1, 1))
sketch7.addConstraint(Sketcher.Constraint("Coincident", 1, 2, 2, 1))
sketch7.addConstraint(Sketcher.Constraint("Coincident", 2, 2, 3, 1))
sketch7.addConstraint(Sketcher.Constraint("Coincident", 3, 2, 0, 1))
sketch7.addConstraint(Sketcher.Constraint("Vertical", 0))
sketch7.addConstraint(Sketcher.Constraint("Horizontal", 1))
sketch7.addConstraint(Sketcher.Constraint("Vertical", 2))
sketch7.addConstraint(Sketcher.Constraint("Horizontal", 3))
sketch7.addConstraint(Sketcher.Constraint("Equal", 3, 0))
sketch7.addConstraint(Sketcher.Constraint("DistanceX", 1, 1, 1, 2, Q("55 mm")))
sketch7.addConstraint(Sketcher.Constraint("DistanceX", -1, 1, 0, 2, Q("47.5 mm")))
sketch7.addConstraint(Sketcher.Constraint("DistanceY", -1, 1, 0, 2, Q("47.5 mm")))
sketch7.setExpression("Constraints[9]", "Params.sketch7_width")
pocket4 = body.newObject("PartDesign::Pocket", "Pocket003")
pocket4.Profile = sketch7
pocket4.setExpression("Length", "Params.pocket4_length")

# Sketch on XY plane
sketch8 = body.newObject("Sketcher::SketchObject", "Sketch007")
sketch8.AttachmentSupport = (doc.getObject("XY_Plane"), [""])
sketch8.MapMode = "FlatFace"
sketch8.AttachmentOffset = App.Placement(Vector(0, 0, 8), App.Rotation())
sketch8.addGeometry(Part.LineSegment(Vector(140, 10, 0), Vector(140, 140, 0)), False)
sketch8.addGeometry(Part.LineSegment(Vector(140, 140, 0), Vector(10, 140, 0)), False)
sketch8.addGeometry(Part.LineSegment(Vector(10, 140, 0), Vector(10, 10, 0)), False)
sketch8.addGeometry(Part.LineSegment(Vector(10, 10, 0), Vector(140, 10, 0)), False)
sketch8.addGeometry(Part.LineSegment(Vector(112.5, 37.5, 0), Vector(37.5, 37.5, 0)), False)
sketch8.addGeometry(Part.LineSegment(Vector(37.5, 37.5, 0), Vector(37.5, 112.5, 0)), False)
sketch8.addGeometry(Part.LineSegment(Vector(37.5, 112.5, 0), Vector(112.5, 112.5, 0)), False)
sketch8.addGeometry(Part.LineSegment(Vector(112.5, 112.5, 0), Vector(112.5, 37.5, 0)), False)
sketch8.addConstraint(Sketcher.Constraint("Coincident", 0, 2, 1, 1))
sketch8.addConstraint(Sketcher.Constraint("Coincident", 1, 2, 2, 1))
sketch8.addConstraint(Sketcher.Constraint("Coincident", 2, 2, 3, 1))
sketch8.addConstraint(Sketcher.Constraint("Coincident", 3, 2, 0, 1))
sketch8.addConstraint(Sketcher.Constraint("Coincident", 4, 2, 5, 1))
sketch8.addConstraint(Sketcher.Constraint("Coincident", 5, 2, 6, 1))
sketch8.addConstraint(Sketcher.Constraint("Coincident", 6, 2, 7, 1))
sketch8.addConstraint(Sketcher.Constraint("Coincident", 7, 2, 4, 1))
sketch8.addConstraint(Sketcher.Constraint("Vertical", 0))
sketch8.addConstraint(Sketcher.Constraint("Horizontal", 1))
sketch8.addConstraint(Sketcher.Constraint("Vertical", 2))
sketch8.addConstraint(Sketcher.Constraint("Horizontal", 3))
sketch8.addConstraint(Sketcher.Constraint("Horizontal", 4))
sketch8.addConstraint(Sketcher.Constraint("Vertical", 5))
sketch8.addConstraint(Sketcher.Constraint("Horizontal", 6))
sketch8.addConstraint(Sketcher.Constraint("Vertical", 7))
sketch8.addConstraint(Sketcher.Constraint("Equal", 3, 0))
sketch8.addConstraint(Sketcher.Constraint("Equal", 6, 5))
sketch8.addConstraint(Sketcher.Constraint("DistanceX", 1, 2, 1, 1, Q("130 mm")))
sketch8.addConstraint(Sketcher.Constraint("DistanceX", 4, 2, 4, 1, Q("75 mm")))
sketch8.addConstraint(Sketcher.Constraint("DistanceX", -1, 1, 0, 2, Q("140 mm")))
sketch8.addConstraint(Sketcher.Constraint("DistanceY", -1, 1, 0, 2, Q("140 mm")))
sketch8.addConstraint(Sketcher.Constraint("DistanceX", -1, 1, 4, 2, Q("37.5 mm")))
sketch8.addConstraint(Sketcher.Constraint("DistanceY", -1, 1, 4, 2, Q("37.5 mm")))
sketch8.setExpression("Constraints[18]", "Params.sketch8_width")
sketch8.setExpression("Constraints[19]", "Params.sketch8_width2")
pad4 = body.newObject("PartDesign::Pad", "Pad003")
pad4.Profile = sketch8
pad4.setExpression("Length", "Params.pad4_length")

# Sketch on XY plane
sketch9 = body.newObject("Sketcher::SketchObject", "Sketch008")
sketch9.AttachmentSupport = (doc.getObject("XY_Plane"), [""])
sketch9.MapMode = "FlatFace"
sketch9.AttachmentOffset = App.Placement(Vector(0, 0, 10), App.Rotation())
sketch9.addGeometry(Part.LineSegment(Vector(0, 150, 0), Vector(0, 0, 0)), False)
sketch9.addGeometry(Part.LineSegment(Vector(0, 0, 0), Vector(150, 0, 0)), False)
sketch9.addGeometry(Part.LineSegment(Vector(150, 0, 0), Vector(150, 150, 0)), False)
sketch9.addGeometry(Part.LineSegment(Vector(150, 150, 0), Vector(0, 150, 0)), False)
sketch9.addGeometry(Part.LineSegment(Vector(10, 10, 0), Vector(10, 140, 0)), False)
sketch9.addGeometry(Part.LineSegment(Vector(10, 140, 0), Vector(140, 140, 0)), False)
sketch9.addGeometry(Part.LineSegment(Vector(140, 140, 0), Vector(140, 10, 0)), False)
sketch9.addGeometry(Part.LineSegment(Vector(140, 10, 0), Vector(10, 10, 0)), False)
sketch9.addConstraint(Sketcher.Constraint("Coincident", 0, 2, 1, 1))
sketch9.addConstraint(Sketcher.Constraint("Coincident", 1, 2, 2, 1))
sketch9.addConstraint(Sketcher.Constraint("Coincident", 2, 2, 3, 1))
sketch9.addConstraint(Sketcher.Constraint("Coincident", 3, 2, 0, 1))
sketch9.addConstraint(Sketcher.Constraint("Coincident", 4, 2, 5, 1))
sketch9.addConstraint(Sketcher.Constraint("Coincident", 5, 2, 6, 1))
sketch9.addConstraint(Sketcher.Constraint("Coincident", 6, 2, 7, 1))
sketch9.addConstraint(Sketcher.Constraint("Coincident", 7, 2, 4, 1))
sketch9.addConstraint(Sketcher.Constraint("Vertical", 0))
sketch9.addConstraint(Sketcher.Constraint("Horizontal", 1))
sketch9.addConstraint(Sketcher.Constraint("Vertical", 2))
sketch9.addConstraint(Sketcher.Constraint("Horizontal", 3))
sketch9.addConstraint(Sketcher.Constraint("Vertical", 4))
sketch9.addConstraint(Sketcher.Constraint("Horizontal", 5))
sketch9.addConstraint(Sketcher.Constraint("Vertical", 6))
sketch9.addConstraint(Sketcher.Constraint("Horizontal", 7))
sketch9.addConstraint(Sketcher.Constraint("Coincident", 0, 2, -1, 1))
sketch9.addConstraint(Sketcher.Constraint("Equal", 3, 0))
sketch9.addConstraint(Sketcher.Constraint("Equal", 7, 4))
sketch9.addConstraint(Sketcher.Constraint("DistanceX", 1, 1, 1, 2, Q("150 mm")))
sketch9.addConstraint(Sketcher.Constraint("DistanceX", 5, 1, 5, 2, Q("130 mm")))
sketch9.addConstraint(Sketcher.Constraint("DistanceX", -1, 1, 4, 2, Q("10 mm")))
sketch9.addConstraint(Sketcher.Constraint("DistanceY", -1, 1, 4, 2, Q("140 mm")))
sketch9.setExpression("Constraints[19]", "Params.sketch9_width")
sketch9.setExpression("Constraints[20]", "Params.sketch9_width2")
pad5 = body.newObject("PartDesign::Pad", "Pad004")
pad5.Profile = sketch9
pad5.setExpression("Length", "Params.pad5_length")

doc.recompute()
